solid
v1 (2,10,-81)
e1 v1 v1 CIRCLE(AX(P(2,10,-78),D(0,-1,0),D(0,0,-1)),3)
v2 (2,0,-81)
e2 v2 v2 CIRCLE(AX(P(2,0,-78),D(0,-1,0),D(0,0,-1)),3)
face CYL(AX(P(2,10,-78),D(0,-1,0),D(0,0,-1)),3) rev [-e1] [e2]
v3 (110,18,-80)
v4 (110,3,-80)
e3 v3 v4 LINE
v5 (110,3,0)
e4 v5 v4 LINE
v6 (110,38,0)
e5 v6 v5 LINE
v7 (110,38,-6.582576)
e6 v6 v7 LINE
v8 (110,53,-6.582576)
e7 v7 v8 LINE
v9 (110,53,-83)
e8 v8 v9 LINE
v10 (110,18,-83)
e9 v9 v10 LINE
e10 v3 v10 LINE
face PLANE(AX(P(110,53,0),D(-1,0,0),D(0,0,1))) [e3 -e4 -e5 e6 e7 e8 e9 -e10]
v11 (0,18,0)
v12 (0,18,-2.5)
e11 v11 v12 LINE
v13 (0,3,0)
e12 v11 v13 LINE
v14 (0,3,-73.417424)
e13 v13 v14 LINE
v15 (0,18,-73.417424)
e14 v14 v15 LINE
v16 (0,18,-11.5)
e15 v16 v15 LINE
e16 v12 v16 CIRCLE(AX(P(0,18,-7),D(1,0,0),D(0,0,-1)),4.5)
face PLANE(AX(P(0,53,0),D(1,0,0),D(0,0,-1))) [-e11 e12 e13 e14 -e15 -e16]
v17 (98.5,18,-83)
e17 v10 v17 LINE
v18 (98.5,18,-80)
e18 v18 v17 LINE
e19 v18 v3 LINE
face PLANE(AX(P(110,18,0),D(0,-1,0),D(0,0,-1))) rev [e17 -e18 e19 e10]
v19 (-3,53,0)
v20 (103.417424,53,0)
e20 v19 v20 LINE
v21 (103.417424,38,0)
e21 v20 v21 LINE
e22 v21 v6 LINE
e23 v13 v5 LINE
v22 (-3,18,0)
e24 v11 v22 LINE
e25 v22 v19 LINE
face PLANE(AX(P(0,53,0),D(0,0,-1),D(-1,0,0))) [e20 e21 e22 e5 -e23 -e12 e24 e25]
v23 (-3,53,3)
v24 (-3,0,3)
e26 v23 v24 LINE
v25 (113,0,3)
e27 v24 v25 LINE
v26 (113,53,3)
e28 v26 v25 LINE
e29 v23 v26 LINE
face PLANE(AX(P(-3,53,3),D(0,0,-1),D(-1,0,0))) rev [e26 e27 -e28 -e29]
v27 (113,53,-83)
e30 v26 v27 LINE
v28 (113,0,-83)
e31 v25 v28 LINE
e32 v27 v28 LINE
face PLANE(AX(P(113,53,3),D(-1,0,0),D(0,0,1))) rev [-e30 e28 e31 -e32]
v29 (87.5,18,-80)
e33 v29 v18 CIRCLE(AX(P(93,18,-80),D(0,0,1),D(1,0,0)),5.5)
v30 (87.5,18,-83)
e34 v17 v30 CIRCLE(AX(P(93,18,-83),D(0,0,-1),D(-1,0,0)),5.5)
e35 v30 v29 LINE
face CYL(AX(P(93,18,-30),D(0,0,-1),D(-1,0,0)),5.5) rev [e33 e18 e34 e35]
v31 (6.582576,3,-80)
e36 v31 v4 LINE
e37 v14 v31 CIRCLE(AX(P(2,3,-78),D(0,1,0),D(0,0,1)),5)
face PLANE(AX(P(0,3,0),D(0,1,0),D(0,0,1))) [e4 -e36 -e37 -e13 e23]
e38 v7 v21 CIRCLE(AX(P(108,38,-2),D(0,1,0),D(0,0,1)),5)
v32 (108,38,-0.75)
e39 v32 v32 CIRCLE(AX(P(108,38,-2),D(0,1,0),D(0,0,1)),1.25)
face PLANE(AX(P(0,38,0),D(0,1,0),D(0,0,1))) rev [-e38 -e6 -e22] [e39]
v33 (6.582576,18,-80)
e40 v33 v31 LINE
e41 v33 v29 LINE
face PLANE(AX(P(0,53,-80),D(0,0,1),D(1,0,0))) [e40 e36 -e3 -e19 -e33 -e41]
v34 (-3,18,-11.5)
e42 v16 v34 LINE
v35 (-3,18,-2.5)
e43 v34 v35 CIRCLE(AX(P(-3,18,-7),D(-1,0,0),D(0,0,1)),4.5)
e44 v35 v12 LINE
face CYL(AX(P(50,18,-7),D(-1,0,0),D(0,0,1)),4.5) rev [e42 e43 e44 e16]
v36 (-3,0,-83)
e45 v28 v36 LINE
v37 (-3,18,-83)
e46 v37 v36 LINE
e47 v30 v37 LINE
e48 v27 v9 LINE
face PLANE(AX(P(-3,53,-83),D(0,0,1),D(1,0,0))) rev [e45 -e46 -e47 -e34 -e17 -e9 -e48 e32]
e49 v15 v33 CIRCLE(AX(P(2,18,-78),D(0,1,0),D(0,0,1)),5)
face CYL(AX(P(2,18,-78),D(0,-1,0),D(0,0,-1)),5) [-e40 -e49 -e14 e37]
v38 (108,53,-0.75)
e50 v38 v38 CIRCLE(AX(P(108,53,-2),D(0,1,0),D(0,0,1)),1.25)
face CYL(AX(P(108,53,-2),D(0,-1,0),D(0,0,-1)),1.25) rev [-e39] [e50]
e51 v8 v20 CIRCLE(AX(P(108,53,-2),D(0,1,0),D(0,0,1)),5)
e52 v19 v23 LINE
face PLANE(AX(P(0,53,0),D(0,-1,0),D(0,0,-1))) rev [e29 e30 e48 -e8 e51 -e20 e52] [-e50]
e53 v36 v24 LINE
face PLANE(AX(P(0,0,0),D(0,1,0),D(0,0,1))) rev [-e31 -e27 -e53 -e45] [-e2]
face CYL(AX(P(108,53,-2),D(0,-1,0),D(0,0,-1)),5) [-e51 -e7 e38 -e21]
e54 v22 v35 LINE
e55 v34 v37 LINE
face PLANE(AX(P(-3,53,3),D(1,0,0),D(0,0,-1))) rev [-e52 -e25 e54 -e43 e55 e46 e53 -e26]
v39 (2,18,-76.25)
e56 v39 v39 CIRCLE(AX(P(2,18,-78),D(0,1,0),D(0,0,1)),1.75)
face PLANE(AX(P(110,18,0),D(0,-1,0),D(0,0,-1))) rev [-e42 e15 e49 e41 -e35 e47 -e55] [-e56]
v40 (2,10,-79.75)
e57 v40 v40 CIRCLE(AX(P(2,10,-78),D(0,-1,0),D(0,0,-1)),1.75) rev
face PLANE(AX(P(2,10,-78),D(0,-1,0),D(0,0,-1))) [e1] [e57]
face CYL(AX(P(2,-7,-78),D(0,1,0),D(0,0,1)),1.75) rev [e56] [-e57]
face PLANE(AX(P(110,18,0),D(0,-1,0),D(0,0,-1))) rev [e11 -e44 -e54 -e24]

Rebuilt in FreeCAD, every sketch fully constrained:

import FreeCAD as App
import Part
import Sketcher

V = App.Vector


def add_polygon(sketch, points):
    """Adds a closed chain of lines whose ends are joined by coincident constraints."""
    first, n = sketch.GeometryCount, len(points)
    for a, b in zip(points, points[1:] + points[:1]):
        sketch.addGeometry(Part.LineSegment(App.Vector(*a, 0), App.Vector(*b, 0)), False)
    for i in range(n):
        sketch.addConstraint(Sketcher.Constraint("Coincident", first + i, 2, first + (i + 1) % n, 1))

doc = App.newDocument("Part")
body = doc.addObject("PartDesign::Body", "Body")

sketch1 = doc.addObject("Sketcher::SketchObject", "Sketch")
body.addObject(sketch1)
sketch1.AttachmentSupport = (doc.XZ_Plane, [""])
sketch1.MapMode = "FlatFace"
add_polygon(sketch1, [(0, -80), (0, 0), (110, 0), (110, -80)])
sketch1.addConstraint(Sketcher.Constraint("Vertical", 0))
sketch1.addConstraint(Sketcher.Constraint("Horizontal", 1))
sketch1.addConstraint(Sketcher.Constraint("Vertical", 2))
sketch1.addConstraint(Sketcher.Constraint("Horizontal", 3))
sketch1.addConstraint(Sketcher.Constraint("Coincident", 0, 2, -1, 1))
sketch1.addConstraint(Sketcher.Constraint("DistanceX", 1, 1, 1, 2, 110.0))
sketch1.addConstraint(Sketcher.Constraint("DistanceY", 0, 1, 0, 2, 80.0))
pad1 = doc.addObject("PartDesign::Pad", "Pad")
body.addObject(pad1)
pad1.Profile = sketch1
pad1.Length = 3
pad1.Reversed = True

sketch2 = doc.addObject("Sketcher::SketchObject", "Sketch001")
body.addObject(sketch2)
sketch2.AttachmentSupport = (doc.XZ_Plane, [""])
sketch2.MapMode = "FlatFace"
add_polygon(sketch2, [(-3, -83), (-3, 3), (113, 3), (113, -83)])
add_polygon(sketch2, [(110, 0), (0, 0), (0, -80), (110, -80)])
sketch2.addConstraint(Sketcher.Constraint("Vertical", 0))
sketch2.addConstraint(Sketcher.Constraint("Horizontal", 1))
sketch2.addConstraint(Sketcher.Constraint("Vertical", 2))
sketch2.addConstraint(Sketcher.Constraint("Horizontal", 3))
sketch2.addConstraint(Sketcher.Constraint("Horizontal", 4))
sketch2.addConstraint(Sketcher.Constraint("Vertical", 5))
sketch2.addConstraint(Sketcher.Constraint("Horizontal", 6))
sketch2.addConstraint(Sketcher.Constraint("Vertical", 7))
sketch2.addConstraint(Sketcher.Constraint("Coincident", 4, 2, -1, 1))
sketch2.addConstraint(Sketcher.Constraint("DistanceX", 1, 1, 1, 2, 116.0))
sketch2.addConstraint(Sketcher.Constraint("DistanceX", 4, 2, 4, 1, 110.0))
sketch2.addConstraint(Sketcher.Constraint("DistanceY", 0, 1, 0, 2, 86.0))
sketch2.addConstraint(Sketcher.Constraint("DistanceY", 5, 2, 5, 1, 80.0))
sketch2.addConstraint(Sketcher.Constraint("DistanceX", 0, 2, -1, 1, 3.0))
sketch2.addConstraint(Sketcher.Constraint("DistanceY", -1, 1, 0, 2, 3.0))
pad2 = doc.addObject("PartDesign::Pad", "Pad001")
body.addObject(pad2)
pad2.Profile = sketch2
pad2.Length = 53
pad2.Reversed = True

sketch3 = doc.addObject("Sketcher::SketchObject", "Sketch002")
body.addObject(sketch3)
sketch3.AttachmentSupport = (doc.YZ_Plane, [""])
sketch3.MapMode = "FlatFace"
sketch3.AttachmentOffset = App.Placement(V(0, 0, -3), App.Rotation())
sketch3.addGeometry(Part.Circle(V(18, -7, 0), V(0, 0, 1), 4.5), False)
sketch3.addConstraint(Sketcher.Constraint("Diameter", 0, 9.0))
sketch3.addConstraint(Sketcher.Constraint("DistanceX", -1, 1, 0, 3, 18.0))
sketch3.addConstraint(Sketcher.Constraint("DistanceY", 0, 3, -1, 1, 7.0))
pocket1 = doc.addObject("PartDesign::Pocket", "Pocket")
body.addObject(pocket1)
pocket1.Profile = sketch3
pocket1.Length = 53
pocket1.Reversed = True

sketch4 = doc.addObject("Sketcher::SketchObject", "Sketch003")
body.addObject(sketch4)
sketch4.AttachmentSupport = (doc.XY_Plane, [""])
sketch4.MapMode = "FlatFace"
sketch4.AttachmentOffset = App.Placement(V(0, 0, -83), App.Rotation())
sketch4.addGeometry(Part.Circle(V(93, 18, 0), V(0, 0, 1), 6), False)
sketch4.addConstraint(Sketcher.Constraint("Diameter", 0, 11.0))
sketch4.addConstraint(Sketcher.Constraint("DistanceX", -1, 1, 0, 3, 93.0))
sketch4.addConstraint(Sketcher.Constraint("DistanceY", -1, 1, 0, 3, 18.0))
pocket2 = doc.addObject("PartDesign::Pocket", "Pocket001")
body.addObject(pocket2)
pocket2.Profile = sketch4
pocket2.Length = 53
pocket2.Reversed = True

sketch5 = doc.addObject("Sketcher::SketchObject", "Sketch004")
body.addObject(sketch5)
sketch5.AttachmentSupport = (doc.XY_Plane, [""])
sketch5.MapMode = "FlatFace"
sketch5.AttachmentOffset = App.Placement(V(0, 0, -83), App.Rotation())
add_polygon(sketch5, [(110, 53), (110, 18), (-3, 18), (-3, 53)])
sketch5.addConstraint(Sketcher.Constraint("Vertical", 0))
sketch5.addConstraint(Sketcher.Constraint("Horizontal", 1))
sketch5.addConstraint(Sketcher.Constraint("Vertical", 2))
sketch5.addConstraint(Sketcher.Constraint("Horizontal", 3))
sketch5.addConstraint(Sketcher.Constraint("DistanceX", 1, 2, 1, 1, 113.0))
sketch5.addConstraint(Sketcher.Constraint("DistanceY", 0, 2, 0, 1, 35.0))
sketch5.addConstraint(Sketcher.Constraint("DistanceX", -1, 1, 0, 2, 110.0))
sketch5.addConstraint(Sketcher.Constraint("DistanceY", -1, 1, 0, 2, 18.0))
pocket3 = doc.addObject("PartDesign::Pocket", "Pocket002")
body.addObject(pocket3)
pocket3.Profile = sketch5
pocket3.Length = 83
pocket3.Reversed = True

sketch6 = doc.addObject("Sketcher::SketchObject", "Sketch005")
body.addObject(sketch6)
sketch6.AttachmentSupport = (doc.XZ_Plane, [""])
sketch6.MapMode = "FlatFace"
sketch6.AttachmentOffset = App.Placement(V(0, 0, -3), App.Rotation())
sketch6.addGeometry(Part.Circle(V(2, -78, 0), V(0, 0, 1), 5), False)
sketch6.addConstraint(Sketcher.Constraint("Diameter", 0, 10.0))
sketch6.addConstraint(Sketcher.Constraint("DistanceX", -1, 1, 0, 3, 2.0))
sketch6.addConstraint(Sketcher.Constraint("DistanceY", 0, 3, -1, 1, 78.0))
pad3 = doc.addObject("PartDesign::Pad", "Pad002")
body.addObject(pad3)
pad3.Profile = sketch6
pad3.Length = 15
pad3.Reversed = True

sketch7 = doc.addObject("Sketcher::SketchObject", "Sketch006")
body.addObject(sketch7)
sketch7.AttachmentSupport = (doc.XZ_Plane, [""])
sketch7.MapMode = "FlatFace"
sketch7.AttachmentOffset = App.Placement(V(0, 0, -18), App.Rotation())
sketch7.addGeometry(Part.Circle(V(2, -78, 0), V(0, 0, 1), 1.8), False)
sketch7.addConstraint(Sketcher.Constraint("Diameter", 0, 3.5))
sketch7.addConstraint(Sketcher.Constraint("DistanceX", -1, 1, 0, 3, 2.0))
sketch7.addConstraint(Sketcher.Constraint("DistanceY", 0, 3, -1, 1, 78.0))
pocket4 = doc.addObject("PartDesign::Pocket", "Pocket003")
body.addObject(pocket4)
pocket4.Profile = sketch7
pocket4.Length = 25
pocket4.Reversed = True

sketch8 = doc.addObject("Sketcher::SketchObject", "Sketch007")
body.addObject(sketch8)
sketch8.AttachmentSupport = (doc.XZ_Plane, [""])
sketch8.MapMode = "FlatFace"
sketch8.addGeometry(Part.Circle(V(2, -78, 0), V(0, 0, 1), 3), False)
sketch8.addConstraint(Sketcher.Constraint("Diameter", 0, 6.0))
sketch8.addConstraint(Sketcher.Constraint("DistanceX", -1, 1, 0, 3, 2.0))
sketch8.addConstraint(Sketcher.Constraint("DistanceY", 0, 3, -1, 1, 78.0))
pocket5 = doc.addObject("PartDesign::Pocket", "Pocket004")
body.addObject(pocket5)
pocket5.Profile = sketch8
pocket5.Length = 10

sketch9 = doc.addObject("Sketcher::SketchObject", "Sketch008")
body.addObject(sketch9)
sketch9.AttachmentSupport = (doc.XZ_Plane, [""])
sketch9.MapMode = "FlatFace"
sketch9.AttachmentOffset = App.Placement(V(0, 0, -3), App.Rotation())
sketch9.addGeometry(Part.Circle(V(108, -2, 0), V(0, 0, 1), 5), False)
sketch9.addGeometry(Part.Circle(V(108, -2, 0), V(0, 0, 1), 1.2), False)
sketch9.addConstraint(Sketcher.Constraint("Coincident", 1, 3, 0, 3))
sketch9.addConstraint(Sketcher.Constraint("Diameter", 0, 10.0))
sketch9.addConstraint(Sketcher.Constraint("Diameter", 1, 2.5))
sketch9.addConstraint(Sketcher.Constraint("DistanceX", -1, 1, 0, 3, 108.0))
sketch9.addConstraint(Sketcher.Constraint("DistanceY", 0, 3, -1, 1, 2.0))
pad4 = doc.addObject("PartDesign::Pad", "Pad003")
body.addObject(pad4)
pad4.Profile = sketch9
pad4.Length = 50
pad4.Reversed = True

sketch10 = doc.addObject("Sketcher::SketchObject", "Sketch009")
body.addObject(sketch10)
sketch10.AttachmentSupport = (doc.XZ_Plane, [""])
sketch10.MapMode = "FlatFace"
sketch10.AttachmentOffset = App.Placement(V(0, 0, -3), App.Rotation())
add_polygon(sketch10, [(77, -25), (77, 0), (110, 0), (110, -25)])
sketch10.addConstraint(Sketcher.Constraint("Vertical", 0))
sketch10.addConstraint(Sketcher.Constraint("Horizontal", 1))
sketch10.addConstraint(Sketcher.Constraint("Vertical", 2))
sketch10.addConstraint(Sketcher.Constraint("Horizontal", 3))
sketch10.addConstraint(Sketcher.Constraint("PointOnObject", 0, 2, -1))
sketch10.addConstraint(Sketcher.Constraint("DistanceX", -1, 1, 1, 2, 110.0))
sketch10.addConstraint(Sketcher.Constraint("DistanceX", 1, 1, 1, 2, 33.464657))
sketch10.addConstraint(Sketcher.Constraint("DistanceY", 0, 1, 0, 2, 24.968485))
pocket6 = doc.addObject("PartDesign::Pocket", "Pocket005")
body.addObject(pocket6)
pocket6.Profile = sketch10
pocket6.Length = 35

doc.recompute()
